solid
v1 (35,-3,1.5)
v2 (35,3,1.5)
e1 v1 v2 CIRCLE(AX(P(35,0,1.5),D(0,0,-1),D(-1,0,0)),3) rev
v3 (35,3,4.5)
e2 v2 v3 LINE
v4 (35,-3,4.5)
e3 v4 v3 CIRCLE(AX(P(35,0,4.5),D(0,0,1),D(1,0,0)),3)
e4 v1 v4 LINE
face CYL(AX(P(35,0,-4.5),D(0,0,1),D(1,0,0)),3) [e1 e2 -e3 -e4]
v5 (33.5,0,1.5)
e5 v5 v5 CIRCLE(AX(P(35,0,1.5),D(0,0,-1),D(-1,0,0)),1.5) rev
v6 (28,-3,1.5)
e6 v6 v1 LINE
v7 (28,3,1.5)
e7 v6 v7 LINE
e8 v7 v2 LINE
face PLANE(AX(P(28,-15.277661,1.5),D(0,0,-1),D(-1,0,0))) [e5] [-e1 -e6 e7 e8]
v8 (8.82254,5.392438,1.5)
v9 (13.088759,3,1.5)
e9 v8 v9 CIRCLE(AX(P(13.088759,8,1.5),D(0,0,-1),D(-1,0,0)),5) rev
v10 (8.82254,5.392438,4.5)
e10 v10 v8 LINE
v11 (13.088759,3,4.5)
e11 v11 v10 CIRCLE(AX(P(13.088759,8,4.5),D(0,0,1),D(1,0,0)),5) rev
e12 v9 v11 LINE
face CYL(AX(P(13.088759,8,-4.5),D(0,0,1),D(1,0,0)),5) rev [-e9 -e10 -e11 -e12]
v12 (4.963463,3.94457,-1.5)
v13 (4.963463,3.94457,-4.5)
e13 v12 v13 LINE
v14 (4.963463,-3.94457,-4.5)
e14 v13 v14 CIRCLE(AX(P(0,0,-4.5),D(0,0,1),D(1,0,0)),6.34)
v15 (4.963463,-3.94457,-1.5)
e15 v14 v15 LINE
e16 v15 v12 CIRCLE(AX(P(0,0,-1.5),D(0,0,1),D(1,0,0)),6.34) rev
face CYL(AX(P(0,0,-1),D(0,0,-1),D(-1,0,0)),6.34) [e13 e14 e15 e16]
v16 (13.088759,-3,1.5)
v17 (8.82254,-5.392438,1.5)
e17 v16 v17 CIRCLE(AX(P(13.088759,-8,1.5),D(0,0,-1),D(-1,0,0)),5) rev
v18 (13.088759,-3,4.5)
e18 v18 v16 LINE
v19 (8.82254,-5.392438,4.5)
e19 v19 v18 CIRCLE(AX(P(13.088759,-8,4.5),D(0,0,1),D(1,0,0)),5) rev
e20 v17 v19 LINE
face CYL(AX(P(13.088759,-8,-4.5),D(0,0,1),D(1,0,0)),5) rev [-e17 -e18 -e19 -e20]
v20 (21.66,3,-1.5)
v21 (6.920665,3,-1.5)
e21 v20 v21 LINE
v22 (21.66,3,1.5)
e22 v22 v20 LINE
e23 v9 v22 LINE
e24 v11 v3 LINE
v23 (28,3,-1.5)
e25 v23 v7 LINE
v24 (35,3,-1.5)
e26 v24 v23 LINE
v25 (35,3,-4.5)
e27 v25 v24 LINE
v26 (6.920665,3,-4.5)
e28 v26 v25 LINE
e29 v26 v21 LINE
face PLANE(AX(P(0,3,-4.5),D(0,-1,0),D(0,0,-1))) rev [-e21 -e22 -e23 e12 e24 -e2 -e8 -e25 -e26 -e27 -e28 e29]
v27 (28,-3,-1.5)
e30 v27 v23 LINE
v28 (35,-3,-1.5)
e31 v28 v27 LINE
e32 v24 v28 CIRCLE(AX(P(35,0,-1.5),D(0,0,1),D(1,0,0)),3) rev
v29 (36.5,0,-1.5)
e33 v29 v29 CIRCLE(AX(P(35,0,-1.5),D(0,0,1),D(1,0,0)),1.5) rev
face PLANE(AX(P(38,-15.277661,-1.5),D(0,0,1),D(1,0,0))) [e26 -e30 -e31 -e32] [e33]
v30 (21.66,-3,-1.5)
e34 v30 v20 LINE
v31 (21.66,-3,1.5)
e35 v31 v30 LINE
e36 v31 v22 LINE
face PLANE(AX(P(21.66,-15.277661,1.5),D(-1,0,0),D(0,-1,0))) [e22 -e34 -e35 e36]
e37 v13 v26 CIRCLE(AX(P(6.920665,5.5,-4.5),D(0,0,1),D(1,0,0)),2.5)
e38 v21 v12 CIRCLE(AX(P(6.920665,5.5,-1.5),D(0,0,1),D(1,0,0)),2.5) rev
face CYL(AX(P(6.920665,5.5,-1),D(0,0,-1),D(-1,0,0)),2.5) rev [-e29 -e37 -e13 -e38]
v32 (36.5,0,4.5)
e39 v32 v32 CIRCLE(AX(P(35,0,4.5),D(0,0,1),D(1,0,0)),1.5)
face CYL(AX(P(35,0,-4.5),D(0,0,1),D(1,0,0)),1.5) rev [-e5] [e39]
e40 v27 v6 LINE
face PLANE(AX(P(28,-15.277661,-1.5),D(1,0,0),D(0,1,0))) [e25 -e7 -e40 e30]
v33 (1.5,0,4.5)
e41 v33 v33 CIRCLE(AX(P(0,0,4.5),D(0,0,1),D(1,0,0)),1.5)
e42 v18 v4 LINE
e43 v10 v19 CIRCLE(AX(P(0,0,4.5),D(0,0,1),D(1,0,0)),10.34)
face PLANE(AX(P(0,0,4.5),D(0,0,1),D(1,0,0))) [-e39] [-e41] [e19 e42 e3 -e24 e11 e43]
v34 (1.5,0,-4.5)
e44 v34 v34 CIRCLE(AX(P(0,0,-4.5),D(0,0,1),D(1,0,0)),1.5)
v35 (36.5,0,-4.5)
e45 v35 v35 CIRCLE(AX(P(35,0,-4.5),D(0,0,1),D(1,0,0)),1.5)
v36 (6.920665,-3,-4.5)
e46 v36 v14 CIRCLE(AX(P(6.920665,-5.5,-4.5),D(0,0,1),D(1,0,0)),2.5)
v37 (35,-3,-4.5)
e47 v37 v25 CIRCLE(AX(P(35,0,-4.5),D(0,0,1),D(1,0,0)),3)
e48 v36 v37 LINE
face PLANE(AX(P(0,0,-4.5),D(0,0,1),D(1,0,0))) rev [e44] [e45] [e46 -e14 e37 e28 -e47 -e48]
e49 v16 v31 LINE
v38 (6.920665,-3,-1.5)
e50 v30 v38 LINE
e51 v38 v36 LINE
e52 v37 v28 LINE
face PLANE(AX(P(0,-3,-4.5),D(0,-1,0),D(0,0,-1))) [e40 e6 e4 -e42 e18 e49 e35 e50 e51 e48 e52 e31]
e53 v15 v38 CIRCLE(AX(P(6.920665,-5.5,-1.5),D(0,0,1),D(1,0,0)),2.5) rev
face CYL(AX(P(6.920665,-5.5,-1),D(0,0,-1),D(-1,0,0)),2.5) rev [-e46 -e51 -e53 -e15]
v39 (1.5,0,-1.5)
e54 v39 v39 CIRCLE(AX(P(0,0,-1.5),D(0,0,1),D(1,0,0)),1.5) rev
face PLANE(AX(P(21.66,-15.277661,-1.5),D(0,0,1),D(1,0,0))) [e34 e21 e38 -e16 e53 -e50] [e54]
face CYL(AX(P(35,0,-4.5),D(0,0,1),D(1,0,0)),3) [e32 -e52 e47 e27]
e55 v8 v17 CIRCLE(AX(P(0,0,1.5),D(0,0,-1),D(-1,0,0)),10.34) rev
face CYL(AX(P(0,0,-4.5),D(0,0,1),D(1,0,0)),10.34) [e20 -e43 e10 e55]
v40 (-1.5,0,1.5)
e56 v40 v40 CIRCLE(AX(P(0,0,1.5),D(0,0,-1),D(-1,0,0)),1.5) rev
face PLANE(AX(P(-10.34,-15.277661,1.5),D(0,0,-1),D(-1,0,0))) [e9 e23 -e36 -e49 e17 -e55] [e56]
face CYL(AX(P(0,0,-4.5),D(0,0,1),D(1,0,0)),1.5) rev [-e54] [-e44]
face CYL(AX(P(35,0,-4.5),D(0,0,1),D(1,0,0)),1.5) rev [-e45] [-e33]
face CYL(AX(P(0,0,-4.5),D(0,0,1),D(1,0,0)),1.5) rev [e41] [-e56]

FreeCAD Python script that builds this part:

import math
import FreeCAD as App
import Part
import Sketcher
from FreeCAD import Vector


def edges_at(feature, points):
    """Names of the edges that pass closest to the given points."""
    edges = feature.Shape.Edges
    near = lambda p: min(range(len(edges)), key=lambda i: edges[i].distToShape(Part.Vertex(*p))[0])
    return sorted({f"Edge{near(p) + 1}" for p in points})

doc = App.newDocument("Part")
body = doc.addObject("PartDesign::Body", "Body")

# Sketch on XY plane
sketch1 = body.newObject("Sketcher::SketchObject", "Sketch")
sketch1.AttachmentSupport = (doc.getObject("XY_Plane"), [""])
sketch1.MapMode = "FlatFace"
sketch1.addGeometry([
    Part.ArcOfCircle(Part.Circle(Vector(0, 0, 0), Vector(0, 0, 1), 10.3), math.radians(17), math.radians(343)),  # 0
    Part.LineSegment(Vector(9.9, -3, 0), Vector(35, -3, 0)),  # 1
    Part.ArcOfCircle(Part.Circle(Vector(35, 0, 0), Vector(0, 0, 1), 3), math.radians(-90), math.radians(90)),  # 2
    Part.LineSegment(Vector(35, 3, 0), Vector(9.9, 3, 0)),  # 3
    Part.Circle(Vector(0, 0, 0), Vector(0, 0, 1), 1.5),  # 4
    Part.Circle(Vector(35, 0, 0), Vector(0, 0, 1), 1.5),  # 5
], False)
sketch1.addConstraint([
    Sketcher.Constraint("Coincident", 0, 2, 1, 1),
    Sketcher.Constraint("Tangent", 1, 2, 2, 1),
    Sketcher.Constraint("Tangent", 2, 2, 3, 1),
    Sketcher.Constraint("Coincident", 3, 2, 0, 1),
    Sketcher.Constraint("Horizontal", 1),
    Sketcher.Constraint("Horizontal", 3),
    Sketcher.Constraint("Coincident", 0, 3, -1, 1),
    Sketcher.Constraint("Coincident", 4, 3, -1, 1),
    Sketcher.Constraint("Coincident", 5, 3, 2, 3),
    Sketcher.Constraint("Equal", 4, 5),
    Sketcher.Constraint("PointOnObject", 2, 3, -1),
    Sketcher.Constraint("Diameter", 4, 3.0),
    Sketcher.Constraint("Radius", 2, 3.0),
    Sketcher.Constraint("Radius", 0, 10.34),
    Sketcher.Constraint("DistanceX", -1, 1, 2, 3, 35.0),
])
pad1 = body.newObject("PartDesign::Pad", "Pad")
pad1.Profile = sketch1
pad1.Type = "TwoLengths"
pad1.Length = 4.5
pad1.Length2 = 4.5

# Sketch on XZ plane
sketch2 = body.newObject("Sketcher::SketchObject", "Sketch001")
sketch2.AttachmentSupport = (doc.getObject("XZ_Plane"), [""])
sketch2.MapMode = "FlatFace"
sketch2.AttachmentOffset = App.Placement(Vector(0, 0, 3), App.Rotation())
sketch2.addGeometry([
    Part.LineSegment(Vector(21.7, -1.5, 0), Vector(21.7, 1.5, 0)),  # 0
    Part.LineSegment(Vector(21.7, 1.5, 0), Vector(-10.3, 1.5, 0)),  # 1
    Part.LineSegment(Vector(-10.3, 1.5, 0), Vector(-10.3, -1.5, 0)),  # 2
    Part.LineSegment(Vector(-10.3, -1.5, 0), Vector(21.7, -1.5, 0)),  # 3
    Part.LineSegment(Vector(38, -1.5, 0), Vector(38, 1.5, 0)),  # 4
    Part.LineSegment(Vector(38, 1.5, 0), Vector(28, 1.5, 0)),  # 5
    Part.LineSegment(Vector(28, 1.5, 0), Vector(28, -1.5, 0)),  # 6
    Part.LineSegment(Vector(28, -1.5, 0), Vector(38, -1.5, 0)),  # 7
], False)
sketch2.addConstraint([
    Sketcher.Constraint("Coincident", 0, 2, 1, 1),
    Sketcher.Constraint("Coincident", 1, 2, 2, 1),
    Sketcher.Constraint("Coincident", 2, 2, 3, 1),
    Sketcher.Constraint("Coincident", 3, 2, 0, 1),
    Sketcher.Constraint("Coincident", 4, 2, 5, 1),
    Sketcher.Constraint("Coincident", 5, 2, 6, 1),
    Sketcher.Constraint("Coincident", 6, 2, 7, 1),
    Sketcher.Constraint("Coincident", 7, 2, 4, 1),
    Sketcher.Constraint("Vertical", 0),
    Sketcher.Constraint("Horizontal", 1),
    Sketcher.Constraint("Vertical", 2),
    Sketcher.Constraint("Horizontal", 3),
    Sketcher.Constraint("Vertical", 4),
    Sketcher.Constraint("Horizontal", 5),
    Sketcher.Constraint("Vertical", 6),
    Sketcher.Constraint("Horizontal", 7),
    Sketcher.Constraint("Horizontal", 1, 2, 4, 2),
    Sketcher.Constraint("Horizontal", 3, 2, 6, 2),
    Sketcher.Constraint("DistanceX", 1, 2, 1, 1, 32.0),
    Sketcher.Constraint("DistanceX", 5, 2, 5, 1, 10.0),
    Sketcher.Constraint("DistanceY", 0, 1, 0, 2, 3.0),
    Sketcher.Constraint("DistanceX", -1, 1, 4, 2, 38.0),
    Sketcher.Constraint("DistanceY", -1, 1, 0, 2, 1.5),
    Sketcher.Constraint("DistanceX", -1, 1, 0, 2, 21.66),
])
pocket1 = body.newObject("PartDesign::Pocket", "Pocket")
pocket1.Profile = sketch2
pocket1.Type = "ThroughAll"
pocket1.Midplane = True

# Sketch on XY plane
sketch3 = body.newObject("Sketcher::SketchObject", "Sketch002")
sketch3.AttachmentSupport = (doc.getObject("XY_Plane"), [""])
sketch3.MapMode = "FlatFace"
sketch3.AttachmentOffset = App.Placement(Vector(0, 0, -4.5), App.Rotation())
sketch3.addGeometry([
    Part.LineSegment(Vector(9.9, 3, 0), Vector(5.6, 3, 0)),
    Part.ArcOfCircle(Part.Circle(Vector(0, 0, 0), Vector(0, 0, 1), 6.3), math.radians(28), math.radians(332)),
    Part.LineSegment(Vector(5.6, -3, 0), Vector(9.9, -3, 0)),
    Part.ArcOfCircle(Part.Circle(Vector(0, 0, 0), Vector(0, 0, 1), 10.3), math.radians(17), math.radians(343)),
], False)
sketch3.addConstraint([
    Sketcher.Constraint("Coincident", 0, 2, 1, 1),
    Sketcher.Constraint("Coincident", 1, 2, 2, 1),
    Sketcher.Constraint("Coincident", 2, 2, 3, 2),
    Sketcher.Constraint("Coincident", 3, 1, 0, 1),
    Sketcher.Constraint("Horizontal", 0),
    Sketcher.Constraint("Horizontal", 2),
    Sketcher.Constraint("Coincident", 1, 3, -1, 1),
    Sketcher.Constraint("Coincident", 3, 3, -1, 1),
    Sketcher.Constraint("Vertical", 0, 2, 1, 2),
    Sketcher.Constraint("Radius", 1, 6.34),
    Sketcher.Constraint("Radius", 3, 10.34),
    Sketcher.Constraint("DistanceY", -1, 1, 0, 2, 3.0),
])
pocket2 = body.newObject("PartDesign::Pocket", "Pocket001")
pocket2.Profile = sketch3
pocket2.Length = 3.5
pocket2.Reversed = True
doc.recompute()

fillet = body.newObject("PartDesign::Fillet", "Fillet")
fillet.Base = (pocket2, edges_at(pocket2, [(9.895, 3, 3)]))
fillet.Radius = 5
doc.recompute()

fillet2 = body.newObject("PartDesign::Fillet", "Fillet001")
fillet2.Base = (fillet, edges_at(fillet, [(9.895, -3, 3)]))
fillet2.Radius = 5
doc.recompute()

fillet3 = body.newObject("PartDesign::Fillet", "Fillet002")
fillet3.Base = (fillet2, edges_at(fillet2, [(5.585, 3, -3)]))
fillet3.Radius = 2.5
doc.recompute()

fillet4 = body.newObject("PartDesign::Fillet", "Fillet003")
fillet4.Base = (fillet3, edges_at(fillet3, [(5.585, -3, -3)]))
fillet4.Radius = 2.5

doc.recompute()
